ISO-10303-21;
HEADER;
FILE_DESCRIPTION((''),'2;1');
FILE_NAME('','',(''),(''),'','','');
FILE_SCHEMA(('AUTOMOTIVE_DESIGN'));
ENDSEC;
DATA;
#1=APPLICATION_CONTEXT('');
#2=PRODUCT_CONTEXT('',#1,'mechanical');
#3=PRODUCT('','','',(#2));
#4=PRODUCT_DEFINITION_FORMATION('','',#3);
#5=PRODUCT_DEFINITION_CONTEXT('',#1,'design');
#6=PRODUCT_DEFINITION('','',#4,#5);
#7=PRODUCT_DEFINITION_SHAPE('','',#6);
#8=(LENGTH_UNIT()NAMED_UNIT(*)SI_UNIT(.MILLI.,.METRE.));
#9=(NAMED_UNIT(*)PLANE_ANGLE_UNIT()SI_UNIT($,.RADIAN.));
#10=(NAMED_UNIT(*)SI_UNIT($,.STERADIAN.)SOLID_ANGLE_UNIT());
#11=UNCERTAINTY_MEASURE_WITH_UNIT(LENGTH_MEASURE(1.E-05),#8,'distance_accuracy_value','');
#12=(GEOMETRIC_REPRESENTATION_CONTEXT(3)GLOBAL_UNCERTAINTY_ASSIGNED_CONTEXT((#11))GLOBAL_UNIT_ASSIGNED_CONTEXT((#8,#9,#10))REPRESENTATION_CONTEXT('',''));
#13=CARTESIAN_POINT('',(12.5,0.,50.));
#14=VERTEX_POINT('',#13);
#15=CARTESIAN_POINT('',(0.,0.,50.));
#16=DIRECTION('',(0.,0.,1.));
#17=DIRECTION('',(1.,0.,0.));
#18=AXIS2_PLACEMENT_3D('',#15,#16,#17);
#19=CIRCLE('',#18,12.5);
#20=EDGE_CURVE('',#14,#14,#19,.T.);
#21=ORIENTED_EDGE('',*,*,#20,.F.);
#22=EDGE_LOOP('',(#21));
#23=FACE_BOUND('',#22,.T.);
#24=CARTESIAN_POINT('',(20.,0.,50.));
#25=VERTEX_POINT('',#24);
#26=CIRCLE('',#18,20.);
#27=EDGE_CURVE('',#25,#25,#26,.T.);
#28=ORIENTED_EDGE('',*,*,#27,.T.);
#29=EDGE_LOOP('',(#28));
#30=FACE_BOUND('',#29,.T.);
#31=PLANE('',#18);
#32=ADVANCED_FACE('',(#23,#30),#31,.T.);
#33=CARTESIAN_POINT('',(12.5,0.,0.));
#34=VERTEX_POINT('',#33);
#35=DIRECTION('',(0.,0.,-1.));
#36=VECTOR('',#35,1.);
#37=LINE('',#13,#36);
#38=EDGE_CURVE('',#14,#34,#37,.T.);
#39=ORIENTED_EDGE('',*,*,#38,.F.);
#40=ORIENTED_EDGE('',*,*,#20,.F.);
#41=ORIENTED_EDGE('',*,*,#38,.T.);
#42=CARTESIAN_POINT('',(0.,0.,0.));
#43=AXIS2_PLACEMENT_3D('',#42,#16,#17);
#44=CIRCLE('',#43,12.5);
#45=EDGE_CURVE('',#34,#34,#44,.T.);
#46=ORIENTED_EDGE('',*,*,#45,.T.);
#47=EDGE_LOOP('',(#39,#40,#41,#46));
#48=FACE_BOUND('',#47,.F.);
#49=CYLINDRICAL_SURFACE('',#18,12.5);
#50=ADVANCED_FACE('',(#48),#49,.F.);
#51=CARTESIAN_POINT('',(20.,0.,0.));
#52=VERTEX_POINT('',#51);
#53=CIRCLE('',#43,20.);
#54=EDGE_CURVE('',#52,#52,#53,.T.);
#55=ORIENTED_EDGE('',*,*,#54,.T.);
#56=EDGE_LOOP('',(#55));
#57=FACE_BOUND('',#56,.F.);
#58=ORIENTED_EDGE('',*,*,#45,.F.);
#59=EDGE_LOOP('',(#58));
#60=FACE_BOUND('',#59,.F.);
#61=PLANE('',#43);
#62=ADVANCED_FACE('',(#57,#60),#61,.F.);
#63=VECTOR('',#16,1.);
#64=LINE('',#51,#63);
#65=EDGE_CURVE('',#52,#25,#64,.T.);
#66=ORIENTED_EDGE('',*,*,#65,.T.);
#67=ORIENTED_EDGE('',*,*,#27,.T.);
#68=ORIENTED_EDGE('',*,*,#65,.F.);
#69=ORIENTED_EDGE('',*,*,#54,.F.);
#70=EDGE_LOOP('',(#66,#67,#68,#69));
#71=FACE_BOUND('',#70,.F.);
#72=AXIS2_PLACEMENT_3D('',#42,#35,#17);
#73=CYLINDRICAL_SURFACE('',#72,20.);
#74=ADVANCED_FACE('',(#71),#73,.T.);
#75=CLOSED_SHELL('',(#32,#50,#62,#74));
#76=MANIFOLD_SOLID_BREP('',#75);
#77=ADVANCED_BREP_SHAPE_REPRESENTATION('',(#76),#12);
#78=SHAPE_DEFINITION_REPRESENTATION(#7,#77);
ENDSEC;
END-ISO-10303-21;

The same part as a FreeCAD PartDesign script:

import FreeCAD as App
import Part
import Sketcher
from FreeCAD import Vector
Q = App.Units.Quantity

doc = App.newDocument("Part")
body = doc.addObject("PartDesign::Body", "Body")

sketch1 = body.newObject("Sketcher::SketchObject", "Sketch")
sketch1.AttachmentSupport = (doc.getObject("XY_Plane"), [""])
sketch1.MapMode = "FlatFace"
sketch1.addGeometry(Part.Circle(Vector(0, 0, 0), Vector(0, 0, 1), 20), False)
sketch1.addConstraint(Sketcher.Constraint("Coincident", 0, 3, -1, 1))
sketch1.addConstraint(Sketcher.Constraint("Diameter", 0, Q("40 mm")))
pad1 = body.newObject("PartDesign::Pad", "Pad")
pad1.Profile = sketch1
pad1.Length = 50

sketch2 = body.newObject("Sketcher::SketchObject", "Sketch001")
sketch2.AttachmentSupport = (doc.getObject("XY_Plane"), [""])
sketch2.MapMode = "FlatFace"
sketch2.AttachmentOffset = App.Placement(Vector(0, 0, 50), App.Rotation())
sketch2.addGeometry(Part.Circle(Vector(0, 0, 0), Vector(0, 0, 1), 12), False)
sketch2.addConstraint(Sketcher.Constraint("Coincident", 0, 3, -1, 1))
sketch2.addConstraint(Sketcher.Constraint("Diameter", 0, Q("25 mm")))
pocket1 = body.newObject("PartDesign::Pocket", "Pocket")
pocket1.Profile = sketch2
pocket1.Type = "ThroughAll"

doc.recompute()
